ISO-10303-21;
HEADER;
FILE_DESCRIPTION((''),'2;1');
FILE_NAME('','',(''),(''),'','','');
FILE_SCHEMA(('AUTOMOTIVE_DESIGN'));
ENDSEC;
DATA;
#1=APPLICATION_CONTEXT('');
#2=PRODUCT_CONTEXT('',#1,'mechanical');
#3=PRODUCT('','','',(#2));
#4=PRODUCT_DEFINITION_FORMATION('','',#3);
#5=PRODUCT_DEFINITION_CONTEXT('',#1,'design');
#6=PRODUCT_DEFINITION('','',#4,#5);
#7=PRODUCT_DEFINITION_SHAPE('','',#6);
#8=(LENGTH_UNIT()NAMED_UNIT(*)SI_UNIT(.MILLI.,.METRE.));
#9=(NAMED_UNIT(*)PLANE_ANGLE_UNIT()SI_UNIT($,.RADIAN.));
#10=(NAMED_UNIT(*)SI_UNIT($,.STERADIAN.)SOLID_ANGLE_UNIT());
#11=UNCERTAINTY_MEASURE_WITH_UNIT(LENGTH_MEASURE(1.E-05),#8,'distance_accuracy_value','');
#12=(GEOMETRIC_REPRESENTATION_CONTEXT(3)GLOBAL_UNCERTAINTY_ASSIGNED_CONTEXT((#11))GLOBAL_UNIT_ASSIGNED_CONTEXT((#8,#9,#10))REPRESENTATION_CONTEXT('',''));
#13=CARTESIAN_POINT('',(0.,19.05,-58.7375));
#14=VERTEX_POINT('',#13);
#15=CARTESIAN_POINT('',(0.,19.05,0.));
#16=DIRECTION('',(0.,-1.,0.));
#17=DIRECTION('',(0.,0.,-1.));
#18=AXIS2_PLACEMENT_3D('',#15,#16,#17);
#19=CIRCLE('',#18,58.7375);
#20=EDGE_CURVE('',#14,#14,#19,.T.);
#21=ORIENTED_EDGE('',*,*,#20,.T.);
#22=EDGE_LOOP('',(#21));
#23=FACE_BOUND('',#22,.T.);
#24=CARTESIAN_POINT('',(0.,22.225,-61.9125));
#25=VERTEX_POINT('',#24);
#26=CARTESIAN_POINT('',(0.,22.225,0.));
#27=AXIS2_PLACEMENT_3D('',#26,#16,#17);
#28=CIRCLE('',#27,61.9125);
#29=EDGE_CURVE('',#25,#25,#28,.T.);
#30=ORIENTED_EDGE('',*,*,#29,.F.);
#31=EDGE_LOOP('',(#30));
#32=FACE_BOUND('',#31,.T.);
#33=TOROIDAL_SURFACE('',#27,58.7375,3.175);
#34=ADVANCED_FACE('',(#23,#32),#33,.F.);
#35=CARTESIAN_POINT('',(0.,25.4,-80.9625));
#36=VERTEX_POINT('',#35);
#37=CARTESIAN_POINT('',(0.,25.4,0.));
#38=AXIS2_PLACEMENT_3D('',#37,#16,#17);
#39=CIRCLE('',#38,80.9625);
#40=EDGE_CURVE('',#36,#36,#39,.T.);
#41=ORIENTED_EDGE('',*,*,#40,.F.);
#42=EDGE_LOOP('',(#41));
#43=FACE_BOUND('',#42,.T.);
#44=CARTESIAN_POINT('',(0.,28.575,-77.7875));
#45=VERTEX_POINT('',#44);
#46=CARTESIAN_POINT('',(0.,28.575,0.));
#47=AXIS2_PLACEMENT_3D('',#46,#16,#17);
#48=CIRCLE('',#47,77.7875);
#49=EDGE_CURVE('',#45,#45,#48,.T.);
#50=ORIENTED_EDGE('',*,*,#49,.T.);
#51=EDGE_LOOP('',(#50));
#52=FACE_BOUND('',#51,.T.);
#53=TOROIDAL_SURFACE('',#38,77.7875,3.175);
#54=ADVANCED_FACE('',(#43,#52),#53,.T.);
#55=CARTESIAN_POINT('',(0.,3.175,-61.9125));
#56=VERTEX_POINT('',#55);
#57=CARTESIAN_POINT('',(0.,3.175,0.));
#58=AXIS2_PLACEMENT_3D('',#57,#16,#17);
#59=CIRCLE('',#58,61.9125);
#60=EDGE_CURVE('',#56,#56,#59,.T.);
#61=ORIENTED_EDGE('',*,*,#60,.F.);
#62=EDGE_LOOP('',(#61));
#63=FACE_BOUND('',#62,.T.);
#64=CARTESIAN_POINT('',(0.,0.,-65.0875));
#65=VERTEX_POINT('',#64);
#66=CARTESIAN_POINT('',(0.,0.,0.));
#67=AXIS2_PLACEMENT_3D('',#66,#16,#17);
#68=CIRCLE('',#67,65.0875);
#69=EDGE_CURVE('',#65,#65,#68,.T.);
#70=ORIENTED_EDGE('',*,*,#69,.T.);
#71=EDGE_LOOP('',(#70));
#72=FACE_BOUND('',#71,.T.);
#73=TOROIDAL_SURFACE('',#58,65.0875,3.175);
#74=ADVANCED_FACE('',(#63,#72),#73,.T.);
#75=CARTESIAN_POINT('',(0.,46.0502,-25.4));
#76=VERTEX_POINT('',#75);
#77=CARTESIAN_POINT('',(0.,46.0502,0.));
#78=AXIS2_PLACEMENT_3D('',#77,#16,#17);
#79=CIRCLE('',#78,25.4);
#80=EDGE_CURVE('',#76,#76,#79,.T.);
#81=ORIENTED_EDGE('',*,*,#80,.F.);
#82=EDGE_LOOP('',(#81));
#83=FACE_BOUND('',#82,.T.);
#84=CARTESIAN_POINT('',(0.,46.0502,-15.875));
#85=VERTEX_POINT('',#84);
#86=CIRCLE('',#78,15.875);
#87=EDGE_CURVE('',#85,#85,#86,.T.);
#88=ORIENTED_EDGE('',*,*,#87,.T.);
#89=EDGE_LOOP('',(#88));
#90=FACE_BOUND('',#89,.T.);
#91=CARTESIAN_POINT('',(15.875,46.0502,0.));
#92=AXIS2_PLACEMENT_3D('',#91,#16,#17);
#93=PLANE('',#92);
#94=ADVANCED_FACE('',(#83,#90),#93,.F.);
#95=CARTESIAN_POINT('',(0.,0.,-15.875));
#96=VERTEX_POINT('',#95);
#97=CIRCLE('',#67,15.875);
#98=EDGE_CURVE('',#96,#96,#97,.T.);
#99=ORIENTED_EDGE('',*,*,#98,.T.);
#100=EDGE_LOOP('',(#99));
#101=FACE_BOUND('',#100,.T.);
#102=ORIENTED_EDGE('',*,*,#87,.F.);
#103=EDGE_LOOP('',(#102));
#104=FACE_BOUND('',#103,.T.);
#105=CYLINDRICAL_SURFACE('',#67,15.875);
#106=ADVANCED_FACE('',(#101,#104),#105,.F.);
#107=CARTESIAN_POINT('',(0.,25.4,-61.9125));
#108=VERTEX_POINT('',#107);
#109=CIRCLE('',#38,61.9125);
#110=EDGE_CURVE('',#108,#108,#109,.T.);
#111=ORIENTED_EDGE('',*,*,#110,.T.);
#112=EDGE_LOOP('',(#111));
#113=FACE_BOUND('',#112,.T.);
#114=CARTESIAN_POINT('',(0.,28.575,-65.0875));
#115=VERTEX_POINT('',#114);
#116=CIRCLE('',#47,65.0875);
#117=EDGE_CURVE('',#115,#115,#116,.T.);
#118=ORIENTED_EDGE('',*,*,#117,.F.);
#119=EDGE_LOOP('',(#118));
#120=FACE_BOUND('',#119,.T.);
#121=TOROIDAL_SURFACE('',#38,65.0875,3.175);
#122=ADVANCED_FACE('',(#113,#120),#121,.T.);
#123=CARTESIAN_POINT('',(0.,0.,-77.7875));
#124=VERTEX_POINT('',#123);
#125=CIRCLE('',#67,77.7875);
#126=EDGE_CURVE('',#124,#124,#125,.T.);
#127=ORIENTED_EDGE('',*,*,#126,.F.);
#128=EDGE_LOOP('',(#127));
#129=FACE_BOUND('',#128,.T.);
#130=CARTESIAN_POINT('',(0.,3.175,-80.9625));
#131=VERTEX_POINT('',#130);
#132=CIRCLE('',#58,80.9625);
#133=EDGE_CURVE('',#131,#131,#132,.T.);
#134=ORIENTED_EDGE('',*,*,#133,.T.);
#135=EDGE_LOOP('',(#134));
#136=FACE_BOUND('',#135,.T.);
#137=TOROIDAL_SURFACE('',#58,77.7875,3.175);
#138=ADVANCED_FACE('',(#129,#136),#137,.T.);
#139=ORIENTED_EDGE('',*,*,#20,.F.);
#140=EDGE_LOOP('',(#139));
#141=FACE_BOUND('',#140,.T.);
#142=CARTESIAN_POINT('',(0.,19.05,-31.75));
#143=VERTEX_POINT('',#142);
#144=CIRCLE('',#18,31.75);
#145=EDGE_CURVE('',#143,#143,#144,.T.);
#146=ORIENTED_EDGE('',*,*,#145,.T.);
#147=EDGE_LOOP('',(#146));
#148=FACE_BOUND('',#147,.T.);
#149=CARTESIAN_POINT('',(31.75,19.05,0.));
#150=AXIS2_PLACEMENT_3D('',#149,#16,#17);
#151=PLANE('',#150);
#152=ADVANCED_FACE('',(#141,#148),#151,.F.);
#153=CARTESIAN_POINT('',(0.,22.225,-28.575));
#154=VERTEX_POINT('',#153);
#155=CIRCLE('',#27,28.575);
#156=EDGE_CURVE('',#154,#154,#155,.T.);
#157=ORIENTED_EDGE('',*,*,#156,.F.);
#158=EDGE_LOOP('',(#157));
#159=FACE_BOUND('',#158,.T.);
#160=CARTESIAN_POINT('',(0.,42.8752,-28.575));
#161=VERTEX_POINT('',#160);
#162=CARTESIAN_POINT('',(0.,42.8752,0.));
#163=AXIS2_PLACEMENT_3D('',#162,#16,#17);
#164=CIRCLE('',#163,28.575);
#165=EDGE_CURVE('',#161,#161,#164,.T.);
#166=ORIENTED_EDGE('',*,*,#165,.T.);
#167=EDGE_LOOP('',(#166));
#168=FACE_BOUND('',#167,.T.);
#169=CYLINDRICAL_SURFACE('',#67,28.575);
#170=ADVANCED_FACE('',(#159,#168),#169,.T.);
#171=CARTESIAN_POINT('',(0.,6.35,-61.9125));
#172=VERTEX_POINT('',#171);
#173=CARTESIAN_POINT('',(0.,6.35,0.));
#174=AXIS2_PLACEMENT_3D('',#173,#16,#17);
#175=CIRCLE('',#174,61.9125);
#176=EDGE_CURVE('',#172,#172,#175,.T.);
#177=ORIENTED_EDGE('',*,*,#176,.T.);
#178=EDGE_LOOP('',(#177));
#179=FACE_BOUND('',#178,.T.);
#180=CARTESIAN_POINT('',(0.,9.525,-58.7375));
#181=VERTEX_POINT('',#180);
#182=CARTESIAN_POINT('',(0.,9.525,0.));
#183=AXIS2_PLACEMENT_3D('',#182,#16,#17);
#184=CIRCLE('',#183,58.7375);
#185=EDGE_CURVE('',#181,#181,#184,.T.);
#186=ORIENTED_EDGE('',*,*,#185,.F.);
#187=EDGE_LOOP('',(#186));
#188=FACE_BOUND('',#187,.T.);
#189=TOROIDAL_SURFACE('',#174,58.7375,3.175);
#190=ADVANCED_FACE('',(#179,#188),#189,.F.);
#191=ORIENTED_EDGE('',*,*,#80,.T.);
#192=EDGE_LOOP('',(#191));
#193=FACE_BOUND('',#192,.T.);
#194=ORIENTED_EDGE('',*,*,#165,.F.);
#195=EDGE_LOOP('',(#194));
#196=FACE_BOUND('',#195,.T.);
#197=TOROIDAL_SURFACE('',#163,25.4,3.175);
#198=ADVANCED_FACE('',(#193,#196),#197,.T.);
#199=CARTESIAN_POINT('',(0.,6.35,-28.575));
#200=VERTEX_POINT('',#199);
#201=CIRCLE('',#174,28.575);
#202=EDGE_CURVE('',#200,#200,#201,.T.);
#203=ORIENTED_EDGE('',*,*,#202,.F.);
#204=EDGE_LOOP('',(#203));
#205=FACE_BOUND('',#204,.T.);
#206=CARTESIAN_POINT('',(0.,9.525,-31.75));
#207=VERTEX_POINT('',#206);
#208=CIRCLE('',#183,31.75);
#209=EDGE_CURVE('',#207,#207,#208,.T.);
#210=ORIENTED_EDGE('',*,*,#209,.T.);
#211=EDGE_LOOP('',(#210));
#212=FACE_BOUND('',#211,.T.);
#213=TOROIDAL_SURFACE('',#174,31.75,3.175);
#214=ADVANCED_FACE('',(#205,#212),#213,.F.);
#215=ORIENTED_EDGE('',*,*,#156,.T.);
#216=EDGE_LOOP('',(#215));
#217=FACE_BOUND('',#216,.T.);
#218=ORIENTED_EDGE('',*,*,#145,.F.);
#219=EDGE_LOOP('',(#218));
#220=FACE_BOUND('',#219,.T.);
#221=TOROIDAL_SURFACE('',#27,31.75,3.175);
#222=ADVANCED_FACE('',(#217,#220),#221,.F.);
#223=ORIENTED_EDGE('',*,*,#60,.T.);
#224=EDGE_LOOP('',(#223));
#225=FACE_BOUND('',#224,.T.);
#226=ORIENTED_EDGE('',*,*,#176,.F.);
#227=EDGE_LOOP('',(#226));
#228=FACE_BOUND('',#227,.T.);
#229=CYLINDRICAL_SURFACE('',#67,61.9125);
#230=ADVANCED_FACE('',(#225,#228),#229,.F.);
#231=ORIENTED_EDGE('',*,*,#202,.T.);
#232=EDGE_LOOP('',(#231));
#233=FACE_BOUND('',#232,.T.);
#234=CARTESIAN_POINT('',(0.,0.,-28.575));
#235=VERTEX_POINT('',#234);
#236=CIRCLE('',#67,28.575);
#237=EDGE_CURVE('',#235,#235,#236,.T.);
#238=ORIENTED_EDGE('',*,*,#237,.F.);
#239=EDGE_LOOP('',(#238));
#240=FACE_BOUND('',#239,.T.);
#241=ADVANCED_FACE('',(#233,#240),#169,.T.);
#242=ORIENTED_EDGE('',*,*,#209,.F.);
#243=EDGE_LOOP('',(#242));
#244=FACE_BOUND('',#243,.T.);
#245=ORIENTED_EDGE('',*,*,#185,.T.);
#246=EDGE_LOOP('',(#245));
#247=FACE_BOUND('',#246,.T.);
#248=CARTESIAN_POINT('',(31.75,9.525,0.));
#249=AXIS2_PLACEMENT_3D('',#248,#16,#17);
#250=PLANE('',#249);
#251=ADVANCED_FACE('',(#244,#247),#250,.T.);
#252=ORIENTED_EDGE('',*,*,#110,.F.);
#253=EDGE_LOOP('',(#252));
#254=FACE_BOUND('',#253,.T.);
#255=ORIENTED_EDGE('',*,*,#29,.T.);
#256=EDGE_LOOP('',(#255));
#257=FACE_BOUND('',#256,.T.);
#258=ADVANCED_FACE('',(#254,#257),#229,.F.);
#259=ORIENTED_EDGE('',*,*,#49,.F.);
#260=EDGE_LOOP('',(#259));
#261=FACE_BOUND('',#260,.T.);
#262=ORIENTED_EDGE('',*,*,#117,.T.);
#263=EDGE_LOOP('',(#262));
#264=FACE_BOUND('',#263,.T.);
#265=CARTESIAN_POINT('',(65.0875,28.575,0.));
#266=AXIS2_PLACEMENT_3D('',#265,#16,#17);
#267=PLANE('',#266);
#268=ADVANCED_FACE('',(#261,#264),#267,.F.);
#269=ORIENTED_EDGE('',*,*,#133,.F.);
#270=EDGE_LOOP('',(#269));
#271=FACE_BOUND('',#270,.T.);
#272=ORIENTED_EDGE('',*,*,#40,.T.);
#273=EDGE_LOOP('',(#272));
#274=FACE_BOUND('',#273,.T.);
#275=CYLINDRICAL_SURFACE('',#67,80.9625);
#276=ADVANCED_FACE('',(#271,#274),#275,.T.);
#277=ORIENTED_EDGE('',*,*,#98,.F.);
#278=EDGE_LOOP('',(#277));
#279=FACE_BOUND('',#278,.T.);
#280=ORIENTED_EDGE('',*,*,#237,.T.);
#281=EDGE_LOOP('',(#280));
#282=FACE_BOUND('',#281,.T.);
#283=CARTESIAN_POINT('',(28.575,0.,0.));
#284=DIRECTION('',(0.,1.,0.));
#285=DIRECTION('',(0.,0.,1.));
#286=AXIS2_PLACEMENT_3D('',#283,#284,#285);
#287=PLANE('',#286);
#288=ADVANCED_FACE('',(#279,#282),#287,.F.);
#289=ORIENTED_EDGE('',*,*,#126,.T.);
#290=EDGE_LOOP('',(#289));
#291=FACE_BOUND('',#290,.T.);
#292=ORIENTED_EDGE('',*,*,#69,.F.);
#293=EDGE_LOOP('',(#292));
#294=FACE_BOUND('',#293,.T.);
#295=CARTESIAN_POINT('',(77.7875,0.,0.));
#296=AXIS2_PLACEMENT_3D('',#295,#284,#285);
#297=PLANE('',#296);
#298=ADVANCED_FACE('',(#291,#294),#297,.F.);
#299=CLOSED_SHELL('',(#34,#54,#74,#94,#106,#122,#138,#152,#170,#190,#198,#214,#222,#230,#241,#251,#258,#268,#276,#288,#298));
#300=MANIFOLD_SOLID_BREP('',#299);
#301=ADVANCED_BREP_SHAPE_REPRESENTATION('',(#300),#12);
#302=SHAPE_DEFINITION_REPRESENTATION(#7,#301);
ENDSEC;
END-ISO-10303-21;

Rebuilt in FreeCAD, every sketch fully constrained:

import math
import FreeCAD as App
import Part
import Sketcher
Q = App.Units.Quantity

doc = App.newDocument("Part")
body = doc.addObject("PartDesign::Body", "Body")

sketch1 = body.newObject("Sketcher::SketchObject", "Sketch")
sketch1.AttachmentSupport = (doc.getObject("XY_Plane"), [""])
sketch1.MapMode = "FlatFace"
sketch1.addGeometry(Part.LineSegment(App.Vector(15.875, 46.0502, 0), App.Vector(15.875, 0, 0)), False)
sketch1.addGeometry(Part.LineSegment(App.Vector(15.875, 0, 0), App.Vector(28.575, 0, 0)), False)
sketch1.addGeometry(Part.LineSegment(App.Vector(28.575, 0, 0), App.Vector(28.575, 6.35, 0)), False)
sketch1.addGeometry(Part.ArcOfCircle(Part.Circle(App.Vector(31.75, 6.35, 0), App.Vector(0, 0, 1), 3.175), math.radians(90), math.radians(180)), False)
sketch1.addGeometry(Part.LineSegment(App.Vector(31.75, 9.525, 0), App.Vector(58.7375, 9.525, 0)), False)
sketch1.addGeometry(Part.ArcOfCircle(Part.Circle(App.Vector(58.7375, 6.35, 0), App.Vector(0, 0, 1), 3.175), math.radians(0), math.radians(90)), False)
sketch1.addGeometry(Part.LineSegment(App.Vector(61.9125, 6.35, 0), App.Vector(61.9125, 3.175, 0)), False)
sketch1.addGeometry(Part.ArcOfCircle(Part.Circle(App.Vector(65.0875, 3.175, 0), App.Vector(0, 0, 1), 3.175), math.radians(-180), math.radians(-90)), False)
sketch1.addGeometry(Part.LineSegment(App.Vector(65.0875, 0, 0), App.Vector(77.7875, 0, 0)), False)
sketch1.addGeometry(Part.ArcOfCircle(Part.Circle(App.Vector(77.7875, 3.175, 0), App.Vector(0, 0, 1), 3.175), math.radians(-90), math.radians(0)), False)
sketch1.addGeometry(Part.LineSegment(App.Vector(80.9625, 3.175, 0), App.Vector(80.9625, 25.4, 0)), False)
sketch1.addGeometry(Part.ArcOfCircle(Part.Circle(App.Vector(77.7875, 25.4, 0), App.Vector(0, 0, 1), 3.175), math.radians(0), math.radians(90)), False)
sketch1.addGeometry(Part.LineSegment(App.Vector(77.7875, 28.575, 0), App.Vector(65.0875, 28.575, 0)), False)
sketch1.addGeometry(Part.ArcOfCircle(Part.Circle(App.Vector(65.0875, 25.4, 0), App.Vector(0, 0, 1), 3.175), math.radians(90), math.radians(180)), False)
sketch1.addGeometry(Part.LineSegment(App.Vector(61.9125, 25.4, 0), App.Vector(61.9125, 22.225, 0)), False)
sketch1.addGeometry(Part.ArcOfCircle(Part.Circle(App.Vector(58.7375, 22.225, 0), App.Vector(0, 0, 1), 3.175), math.radians(-90), math.radians(0)), False)
sketch1.addGeometry(Part.LineSegment(App.Vector(58.7375, 19.05, 0), App.Vector(31.75, 19.05, 0)), False)
sketch1.addGeometry(Part.ArcOfCircle(Part.Circle(App.Vector(31.75, 22.225, 0), App.Vector(0, 0, 1), 3.175), math.radians(-180), math.radians(-90)), False)
sketch1.addGeometry(Part.LineSegment(App.Vector(28.575, 22.225, 0), App.Vector(28.575, 42.8752, 0)), False)
sketch1.addGeometry(Part.ArcOfCircle(Part.Circle(App.Vector(25.4, 42.8752, 0), App.Vector(0, 0, 1), 3.175), math.radians(0), math.radians(90)), False)
sketch1.addGeometry(Part.LineSegment(App.Vector(25.4, 46.0502, 0), App.Vector(15.875, 46.0502, 0)), False)
sketch1.addConstraint(Sketcher.Constraint("Coincident", 0, 2, 1, 1))
sketch1.addConstraint(Sketcher.Constraint("Coincident", 1, 2, 2, 1))
sketch1.addConstraint(Sketcher.Constraint("Tangent", 2, 2, 3, 2))
sketch1.addConstraint(Sketcher.Constraint("Tangent", 3, 1, 4, 1))
sketch1.addConstraint(Sketcher.Constraint("Tangent", 4, 2, 5, 2))
sketch1.addConstraint(Sketcher.Constraint("Tangent", 5, 1, 6, 1))
sketch1.addConstraint(Sketcher.Constraint("Tangent", 6, 2, 7, 1))
sketch1.addConstraint(Sketcher.Constraint("Tangent", 7, 2, 8, 1))
sketch1.addConstraint(Sketcher.Constraint("Tangent", 8, 2, 9, 1))
sketch1.addConstraint(Sketcher.Constraint("Tangent", 9, 2, 10, 1))
sketch1.addConstraint(Sketcher.Constraint("Tangent", 10, 2, 11, 1))
sketch1.addConstraint(Sketcher.Constraint("Tangent", 11, 2, 12, 1))
sketch1.addConstraint(Sketcher.Constraint("Tangent", 12, 2, 13, 1))
sketch1.addConstraint(Sketcher.Constraint("Tangent", 13, 2, 14, 1))
sketch1.addConstraint(Sketcher.Constraint("Tangent", 14, 2, 15, 2))
sketch1.addConstraint(Sketcher.Constraint("Tangent", 15, 1, 16, 1))
sketch1.addConstraint(Sketcher.Constraint("Tangent", 16, 2, 17, 2))
sketch1.addConstraint(Sketcher.Constraint("Tangent", 17, 1, 18, 1))
sketch1.addConstraint(Sketcher.Constraint("Tangent", 18, 2, 19, 1))
sketch1.addConstraint(Sketcher.Constraint("Tangent", 19, 2, 20, 1))
sketch1.addConstraint(Sketcher.Constraint("Coincident", 20, 2, 0, 1))
sketch1.addConstraint(Sketcher.Constraint("Vertical", 0))
sketch1.addConstraint(Sketcher.Constraint("Horizontal", 1))
sketch1.addConstraint(Sketcher.Constraint("Vertical", 2))
sketch1.addConstraint(Sketcher.Constraint("Horizontal", 4))
sketch1.addConstraint(Sketcher.Constraint("Vertical", 6))
sketch1.addConstraint(Sketcher.Constraint("Horizontal", 8))
sketch1.addConstraint(Sketcher.Constraint("Vertical", 10))
sketch1.addConstraint(Sketcher.Constraint("Horizontal", 12))
sketch1.addConstraint(Sketcher.Constraint("Vertical", 14))
sketch1.addConstraint(Sketcher.Constraint("Horizontal", 16))
sketch1.addConstraint(Sketcher.Constraint("Vertical", 18))
sketch1.addConstraint(Sketcher.Constraint("Horizontal", 20))
sketch1.addConstraint(Sketcher.Constraint("Equal", 3, 5))
sketch1.addConstraint(Sketcher.Constraint("Equal", 5, 7))
sketch1.addConstraint(Sketcher.Constraint("Equal", 7, 9))
sketch1.addConstraint(Sketcher.Constraint("Equal", 9, 11))
sketch1.addConstraint(Sketcher.Constraint("Equal", 11, 13))
sketch1.addConstraint(Sketcher.Constraint("Equal", 13, 15))
sketch1.addConstraint(Sketcher.Constraint("Equal", 15, 17))
sketch1.addConstraint(Sketcher.Constraint("Equal", 17, 19))
sketch1.addConstraint(Sketcher.Constraint("PointOnObject", 0, 2, -1))
sketch1.addConstraint(Sketcher.Constraint("PointOnObject", 7, 2, -1))
sketch1.addConstraint(Sketcher.Constraint("Vertical", 7, 3, 13, 3))
sketch1.addConstraint(Sketcher.Constraint("Vertical", 3, 3, 17, 3))
sketch1.addConstraint(Sketcher.Constraint("Equal", 1, 8))
sketch1.addConstraint(Sketcher.Constraint("Equal", 6, 14))
sketch1.addConstraint(Sketcher.Constraint("DistanceX", 1, 1, 1, 2, Q("0.5 in")))
sketch1.addConstraint(Sketcher.Constraint("DistanceY", -1, 1, 11, 3, Q("1 in")))
sketch1.addConstraint(Sketcher.Constraint("DistanceX", -1, 1, 19, 3, Q("1 in")))
sketch1.addConstraint(Sketcher.Constraint("Radius", 3, Q("0.125 in")))
sketch1.addConstraint(Sketcher.Constraint("DistanceY", 2, 1, 2, 2, Q("0.25 in")))
sketch1.addConstraint(Sketcher.Constraint("DistanceX", 4, 1, 4, 2, Q("1.0625 in")))
sketch1.addConstraint(Sketcher.Constraint("DistanceY", 0, 2, 0, 1, Q("1.813 in")))
revolution = body.newObject("PartDesign::Revolution", "Revolution")
revolution.Profile = sketch1
revolution.ReferenceAxis = (sketch1, ["V_Axis"])
revolution.Angle = 360

doc.recompute()
